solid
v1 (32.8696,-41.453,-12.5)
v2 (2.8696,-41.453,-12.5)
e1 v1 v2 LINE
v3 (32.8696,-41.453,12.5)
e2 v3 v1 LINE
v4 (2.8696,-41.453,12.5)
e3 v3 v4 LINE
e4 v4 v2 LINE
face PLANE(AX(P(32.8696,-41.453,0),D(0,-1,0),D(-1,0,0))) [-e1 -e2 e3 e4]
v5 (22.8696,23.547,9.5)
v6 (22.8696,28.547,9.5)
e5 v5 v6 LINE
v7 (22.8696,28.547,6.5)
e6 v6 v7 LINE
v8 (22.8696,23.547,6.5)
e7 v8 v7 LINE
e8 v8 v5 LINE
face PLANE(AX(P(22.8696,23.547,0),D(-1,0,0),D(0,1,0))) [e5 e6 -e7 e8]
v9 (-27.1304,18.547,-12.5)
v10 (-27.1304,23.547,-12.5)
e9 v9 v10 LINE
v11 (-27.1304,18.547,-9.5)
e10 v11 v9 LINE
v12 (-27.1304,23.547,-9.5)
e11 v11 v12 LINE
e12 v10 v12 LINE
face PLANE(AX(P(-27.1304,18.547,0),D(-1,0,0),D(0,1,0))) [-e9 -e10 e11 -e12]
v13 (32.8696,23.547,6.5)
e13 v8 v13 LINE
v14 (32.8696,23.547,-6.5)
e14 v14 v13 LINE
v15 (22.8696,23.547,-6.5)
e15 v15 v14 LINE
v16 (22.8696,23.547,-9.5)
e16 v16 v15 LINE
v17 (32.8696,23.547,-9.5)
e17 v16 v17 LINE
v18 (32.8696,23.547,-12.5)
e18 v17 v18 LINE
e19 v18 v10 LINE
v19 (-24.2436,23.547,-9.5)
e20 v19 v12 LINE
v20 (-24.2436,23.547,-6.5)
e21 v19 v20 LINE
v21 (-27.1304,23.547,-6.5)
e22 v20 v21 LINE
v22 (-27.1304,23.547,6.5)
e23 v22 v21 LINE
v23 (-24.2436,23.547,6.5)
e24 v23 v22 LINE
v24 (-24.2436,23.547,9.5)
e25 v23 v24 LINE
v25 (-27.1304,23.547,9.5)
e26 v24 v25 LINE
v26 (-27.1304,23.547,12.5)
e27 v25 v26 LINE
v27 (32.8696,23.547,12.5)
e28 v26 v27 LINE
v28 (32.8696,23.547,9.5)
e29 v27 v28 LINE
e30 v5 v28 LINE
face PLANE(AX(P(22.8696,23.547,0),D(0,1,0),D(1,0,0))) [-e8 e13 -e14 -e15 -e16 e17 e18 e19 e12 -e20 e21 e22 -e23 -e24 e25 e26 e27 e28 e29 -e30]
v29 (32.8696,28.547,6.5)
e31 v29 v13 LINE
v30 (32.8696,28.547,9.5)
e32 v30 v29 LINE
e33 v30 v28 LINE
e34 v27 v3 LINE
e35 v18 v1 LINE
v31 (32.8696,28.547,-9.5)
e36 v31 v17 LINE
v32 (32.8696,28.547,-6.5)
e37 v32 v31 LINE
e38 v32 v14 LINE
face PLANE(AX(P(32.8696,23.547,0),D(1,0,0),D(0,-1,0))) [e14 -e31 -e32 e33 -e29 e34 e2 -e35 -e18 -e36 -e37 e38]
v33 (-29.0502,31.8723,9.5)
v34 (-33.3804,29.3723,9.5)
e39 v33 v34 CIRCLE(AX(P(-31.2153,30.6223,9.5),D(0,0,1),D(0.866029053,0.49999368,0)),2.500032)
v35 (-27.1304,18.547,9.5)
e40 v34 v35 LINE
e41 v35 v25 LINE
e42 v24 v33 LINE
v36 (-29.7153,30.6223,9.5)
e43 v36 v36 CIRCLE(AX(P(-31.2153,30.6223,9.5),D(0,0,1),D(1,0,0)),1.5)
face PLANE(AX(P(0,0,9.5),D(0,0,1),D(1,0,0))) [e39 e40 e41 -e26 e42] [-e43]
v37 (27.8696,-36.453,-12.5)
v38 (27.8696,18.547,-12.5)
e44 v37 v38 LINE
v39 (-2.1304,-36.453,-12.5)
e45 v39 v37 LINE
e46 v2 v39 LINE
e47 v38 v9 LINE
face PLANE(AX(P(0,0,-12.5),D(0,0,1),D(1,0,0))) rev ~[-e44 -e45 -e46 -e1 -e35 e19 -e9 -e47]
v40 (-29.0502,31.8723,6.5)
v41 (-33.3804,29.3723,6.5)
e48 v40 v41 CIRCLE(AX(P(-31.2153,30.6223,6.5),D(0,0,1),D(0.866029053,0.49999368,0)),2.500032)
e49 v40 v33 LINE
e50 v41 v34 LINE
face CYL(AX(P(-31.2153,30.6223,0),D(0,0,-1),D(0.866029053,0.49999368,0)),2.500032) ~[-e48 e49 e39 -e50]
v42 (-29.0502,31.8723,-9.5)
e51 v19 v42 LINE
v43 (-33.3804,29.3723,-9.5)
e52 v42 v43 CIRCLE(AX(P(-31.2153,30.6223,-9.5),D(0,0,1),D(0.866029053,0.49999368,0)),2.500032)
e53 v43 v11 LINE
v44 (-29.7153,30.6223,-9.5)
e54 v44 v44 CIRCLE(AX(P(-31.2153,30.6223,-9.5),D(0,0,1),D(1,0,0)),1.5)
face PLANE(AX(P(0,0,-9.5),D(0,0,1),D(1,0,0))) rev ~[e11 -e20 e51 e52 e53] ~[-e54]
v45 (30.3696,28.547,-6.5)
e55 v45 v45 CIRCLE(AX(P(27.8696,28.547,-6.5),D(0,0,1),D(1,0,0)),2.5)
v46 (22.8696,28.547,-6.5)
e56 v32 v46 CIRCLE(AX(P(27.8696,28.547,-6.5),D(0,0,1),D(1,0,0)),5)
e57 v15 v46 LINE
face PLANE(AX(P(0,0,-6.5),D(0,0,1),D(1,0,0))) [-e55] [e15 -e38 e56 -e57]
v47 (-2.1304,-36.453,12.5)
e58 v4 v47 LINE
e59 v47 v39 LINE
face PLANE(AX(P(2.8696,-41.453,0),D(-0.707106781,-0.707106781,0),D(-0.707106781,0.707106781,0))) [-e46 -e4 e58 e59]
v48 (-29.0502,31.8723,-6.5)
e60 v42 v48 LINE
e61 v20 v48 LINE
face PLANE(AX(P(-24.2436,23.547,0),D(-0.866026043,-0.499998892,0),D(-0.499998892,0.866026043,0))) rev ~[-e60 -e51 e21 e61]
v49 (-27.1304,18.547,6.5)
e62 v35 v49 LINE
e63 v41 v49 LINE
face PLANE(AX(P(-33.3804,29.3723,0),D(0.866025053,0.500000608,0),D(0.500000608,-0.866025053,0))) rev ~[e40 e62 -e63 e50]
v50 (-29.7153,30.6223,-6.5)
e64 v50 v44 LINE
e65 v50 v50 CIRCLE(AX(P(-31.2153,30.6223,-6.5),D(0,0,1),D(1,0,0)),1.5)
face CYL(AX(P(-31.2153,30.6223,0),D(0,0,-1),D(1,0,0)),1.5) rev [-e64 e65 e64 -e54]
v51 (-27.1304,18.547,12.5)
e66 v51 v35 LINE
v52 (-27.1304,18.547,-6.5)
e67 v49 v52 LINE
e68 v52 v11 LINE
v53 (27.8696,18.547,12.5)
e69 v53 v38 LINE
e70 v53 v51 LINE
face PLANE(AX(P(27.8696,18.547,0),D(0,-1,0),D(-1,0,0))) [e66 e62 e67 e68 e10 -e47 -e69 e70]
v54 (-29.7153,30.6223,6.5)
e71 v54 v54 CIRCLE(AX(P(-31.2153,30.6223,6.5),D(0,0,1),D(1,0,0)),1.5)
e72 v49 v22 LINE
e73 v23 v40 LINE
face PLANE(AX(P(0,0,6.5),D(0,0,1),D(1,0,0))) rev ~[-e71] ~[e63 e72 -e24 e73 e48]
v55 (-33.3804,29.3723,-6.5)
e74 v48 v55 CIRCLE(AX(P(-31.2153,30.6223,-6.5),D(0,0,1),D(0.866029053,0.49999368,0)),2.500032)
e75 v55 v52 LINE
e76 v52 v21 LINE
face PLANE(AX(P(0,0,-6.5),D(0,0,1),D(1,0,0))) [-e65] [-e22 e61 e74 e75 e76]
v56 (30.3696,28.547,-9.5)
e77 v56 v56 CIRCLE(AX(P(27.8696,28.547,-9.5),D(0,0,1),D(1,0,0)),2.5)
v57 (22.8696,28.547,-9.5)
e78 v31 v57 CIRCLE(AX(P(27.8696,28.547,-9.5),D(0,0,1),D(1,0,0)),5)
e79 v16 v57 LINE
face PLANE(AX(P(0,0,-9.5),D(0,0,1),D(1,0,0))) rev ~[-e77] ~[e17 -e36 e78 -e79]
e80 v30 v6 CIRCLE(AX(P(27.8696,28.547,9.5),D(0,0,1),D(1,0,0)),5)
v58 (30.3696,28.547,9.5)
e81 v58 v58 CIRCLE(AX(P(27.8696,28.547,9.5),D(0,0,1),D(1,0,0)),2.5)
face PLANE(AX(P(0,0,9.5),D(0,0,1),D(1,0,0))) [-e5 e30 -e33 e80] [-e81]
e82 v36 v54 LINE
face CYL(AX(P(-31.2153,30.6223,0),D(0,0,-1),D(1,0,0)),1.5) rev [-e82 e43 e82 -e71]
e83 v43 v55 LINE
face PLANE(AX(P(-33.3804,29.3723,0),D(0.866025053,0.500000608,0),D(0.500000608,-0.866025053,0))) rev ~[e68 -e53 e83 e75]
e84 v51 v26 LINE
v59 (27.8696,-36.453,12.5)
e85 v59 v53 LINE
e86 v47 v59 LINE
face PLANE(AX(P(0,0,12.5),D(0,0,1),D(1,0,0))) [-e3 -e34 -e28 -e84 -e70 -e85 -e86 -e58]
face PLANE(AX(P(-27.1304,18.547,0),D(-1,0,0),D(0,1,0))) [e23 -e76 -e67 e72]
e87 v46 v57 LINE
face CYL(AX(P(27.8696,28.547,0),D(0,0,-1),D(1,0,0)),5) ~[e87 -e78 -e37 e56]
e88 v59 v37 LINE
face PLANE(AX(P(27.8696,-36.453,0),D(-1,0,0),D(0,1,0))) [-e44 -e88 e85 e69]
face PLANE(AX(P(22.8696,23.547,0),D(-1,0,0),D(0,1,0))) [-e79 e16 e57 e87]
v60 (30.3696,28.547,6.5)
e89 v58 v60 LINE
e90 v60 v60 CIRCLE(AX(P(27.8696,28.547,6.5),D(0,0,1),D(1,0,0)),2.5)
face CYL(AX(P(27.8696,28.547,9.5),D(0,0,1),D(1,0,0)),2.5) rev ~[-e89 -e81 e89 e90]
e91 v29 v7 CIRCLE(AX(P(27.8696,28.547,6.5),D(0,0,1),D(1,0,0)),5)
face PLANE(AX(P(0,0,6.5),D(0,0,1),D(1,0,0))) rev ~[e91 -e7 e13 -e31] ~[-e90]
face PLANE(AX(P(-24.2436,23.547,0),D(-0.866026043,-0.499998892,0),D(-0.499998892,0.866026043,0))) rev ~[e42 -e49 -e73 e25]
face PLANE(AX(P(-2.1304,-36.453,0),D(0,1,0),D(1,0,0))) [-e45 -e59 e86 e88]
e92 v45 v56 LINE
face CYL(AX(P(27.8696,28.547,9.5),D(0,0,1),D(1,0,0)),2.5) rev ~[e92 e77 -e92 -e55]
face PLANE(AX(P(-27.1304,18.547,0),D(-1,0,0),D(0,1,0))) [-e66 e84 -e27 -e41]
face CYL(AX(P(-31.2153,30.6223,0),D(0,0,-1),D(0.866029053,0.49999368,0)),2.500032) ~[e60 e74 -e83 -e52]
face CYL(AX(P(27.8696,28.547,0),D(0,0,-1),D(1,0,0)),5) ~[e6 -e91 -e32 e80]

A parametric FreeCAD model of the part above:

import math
import FreeCAD as App
import Part
import Sketcher
Q = App.Units.Quantity

doc = App.newDocument("Part")
params = doc.addObject("Spreadsheet::Sheet", "Params")
for row, (alias, value) in enumerate([
    ("sketch1_width", "60 mm"),
    ("sketch1_width2", "55 mm"),
    ("sketch1_width3", "30 mm"),
    ("sketch1_height", "5 mm"),
    ("sketch1_height2", "65 mm"),
    ("pad1_length", "25 mm"),
    ("sketch2_radius", "2.5 mm"),
    ("sketch2_height", "5 mm"),
    ("sketch2_diameter", "3 mm"),
    ("sketch2_length", "12.5 mm"),
    ("pad2_length", "19 mm"),
    ("sketch3_radius", "5 mm"),
    ("sketch3_radius2", "2.5 mm"),
    ("sketch3_height", "5 mm"),
    ("sketch3_diameter", "3 mm"),
    ("sketch3_length", "12.5 mm"),
    ("pocket1_length", "13 mm"),
    ("sketch4_radius", "5 mm"),
    ("sketch4_height", "5 mm"),
    ("pad3_length", "19 mm"),
    ("sketch5_radius", "5 mm"),
    ("sketch5_height", "5 mm"),
    ("pocket2_length", "13 mm"),
    ("sketch6_diameter", "5 mm"),
], start=1):
    params.set(f"A{row}", alias)
    params.set(f"B{row}", "=" + value)
    params.setAlias(f"B{row}", alias)

body = doc.addObject("PartDesign::Body", "Body")

# Sketch on XY plane
sketch1 = body.newObject("Sketcher::SketchObject", "Sketch")
sketch1.AttachmentSupport = (doc.getObject("XY_Plane"), [""])
sketch1.MapMode = "FlatFace"
sketch1.addGeometry([
    Part.LineSegment(App.Vector(33, 24, 0), App.Vector(-27, 24, 0)),  # 0
    Part.LineSegment(App.Vector(-27, 24, 0), App.Vector(-27, 19, 0)),  # 1
    Part.LineSegment(App.Vector(-27, 19, 0), App.Vector(28, 19, 0)),  # 2
    Part.LineSegment(App.Vector(28, 19, 0), App.Vector(28, -36, 0)),  # 3
    Part.LineSegment(App.Vector(28, -36, 0), App.Vector(-2, -36, 0)),  # 4
    Part.LineSegment(App.Vector(-2, -36, 0), App.Vector(3, -41, 0)),  # 5
    Part.LineSegment(App.Vector(3, -41, 0), App.Vector(33, -41, 0)),  # 6
    Part.LineSegment(App.Vector(33, -41, 0), App.Vector(33, 24, 0)),  # 7
], False)
sketch1.addConstraint([
    Sketcher.Constraint("Coincident", 0, 2, 1, 1),
    Sketcher.Constraint("Coincident", 1, 2, 2, 1),
    Sketcher.Constraint("Coincident", 2, 2, 3, 1),
    Sketcher.Constraint("Coincident", 3, 2, 4, 1),
    Sketcher.Constraint("Coincident", 4, 2, 5, 1),
    Sketcher.Constraint("Coincident", 5, 2, 6, 1),
    Sketcher.Constraint("Coincident", 6, 2, 7, 1),
    Sketcher.Constraint("Coincident", 7, 2, 0, 1),
    Sketcher.Constraint("Horizontal", 0),
    Sketcher.Constraint("Vertical", 1),
    Sketcher.Constraint("Horizontal", 2),
    Sketcher.Constraint("Vertical", 3),
    Sketcher.Constraint("Horizontal", 4),
    Sketcher.Constraint("Horizontal", 6),
    Sketcher.Constraint("Vertical", 7),
    Sketcher.Constraint("Equal", 4, 6),
    Sketcher.Constraint("Equal", 2, 3),
    Sketcher.Constraint("DistanceX", 0, 2, 0, 1, Q("60 mm")),
    Sketcher.Constraint("DistanceX", 2, 1, 2, 2, Q("55 mm")),
    Sketcher.Constraint("DistanceX", 4, 2, 4, 1, Q("30 mm")),
    Sketcher.Constraint("DistanceY", 1, 2, 1, 1, Q("5 mm")),
    Sketcher.Constraint("DistanceY", 7, 1, 7, 2, Q("65 mm")),
    Sketcher.Constraint("DistanceY", -1, 1, 0, 2, Q("23.547 mm")),
    Sketcher.Constraint("DistanceX", 0, 2, -1, 1, Q("27.1304 mm")),
])
sketch1.setExpression("Constraints[17]", "Params.sketch1_width")
sketch1.setExpression("Constraints[18]", "Params.sketch1_width2")
sketch1.setExpression("Constraints[19]", "Params.sketch1_width3")
sketch1.setExpression("Constraints[20]", "Params.sketch1_height")
sketch1.setExpression("Constraints[21]", "Params.sketch1_height2")
pad1 = body.newObject("PartDesign::Pad", "Pad")
pad1.Profile = sketch1
pad1.setExpression("Length", "Params.pad1_length")
pad1.Midplane = True

# Sketch on XY plane
sketch2 = body.newObject("Sketcher::SketchObject", "Sketch001")
sketch2.AttachmentSupport = (doc.getObject("XY_Plane"), [""])
sketch2.MapMode = "FlatFace"
sketch2.addGeometry([
    Part.LineSegment(App.Vector(-27.1, 23.5, 0), App.Vector(-24.2, 23.5, 0)),  # 0
    Part.LineSegment(App.Vector(-24.2, 23.5, 0), App.Vector(-29.1, 31.9, 0)),  # 1
    Part.ArcOfCircle(Part.Circle(App.Vector(-31.2, 30.6, 0), App.Vector(0, 0, 1), 2.5), math.radians(30), math.radians(210)),  # 2
    Part.LineSegment(App.Vector(-33.4, 29.4, 0), App.Vector(-27.1, 18.5, 0)),  # 3
    Part.LineSegment(App.Vector(-27.1, 18.5, 0), App.Vector(-27.1, 23.5, 0)),  # 4
    Part.Circle(App.Vector(-31.2, 30.6, 0), App.Vector(0, 0, 1), 1.5),  # 5
], False)
sketch2.addConstraint([
    Sketcher.Constraint("Coincident", 0, 2, 1, 1),
    Sketcher.Constraint("Tangent", 1, 2, 2, 1),
    Sketcher.Constraint("Tangent", 2, 2, 3, 1),
    Sketcher.Constraint("Coincident", 3, 2, 4, 1),
    Sketcher.Constraint("Coincident", 4, 2, 0, 1),
    Sketcher.Constraint("Horizontal", 0),
    Sketcher.Constraint("Vertical", 4),
    Sketcher.Constraint("Coincident", 5, 3, 2, 3),
    Sketcher.Constraint("Parallel", 1, 3),
    Sketcher.Constraint("Radius", 2, Q("2.5 mm")),
    Sketcher.Constraint("DistanceY", 4, 1, 4, 2, Q("5 mm")),
    Sketcher.Constraint("Angle", 3, Q("-60 deg")),
    Sketcher.Constraint("Diameter", 5, Q("3 mm")),
    Sketcher.Constraint("Distance", 3, Q("12.5 mm")),
    Sketcher.Constraint("DistanceY", -1, 1, 0, 2, Q("23.547 mm")),
    Sketcher.Constraint("DistanceX", 2, 3, -1, 1, Q("31.2153 mm")),
])
sketch2.setExpression("Constraints[9]", "Params.sketch2_radius")
sketch2.setExpression("Constraints[10]", "Params.sketch2_height")
sketch2.setExpression("Constraints[12]", "Params.sketch2_diameter")
sketch2.setExpression("Constraints[13]", "Params.sketch2_length")
pad2 = body.newObject("PartDesign::Pad", "Pad001")
pad2.Profile = sketch2
pad2.setExpression("Length", "Params.pad2_length")
pad2.Midplane = True

# Sketch on XY plane
sketch3 = body.newObject("Sketcher::SketchObject", "Sketch002")
sketch3.AttachmentSupport = (doc.getObject("XY_Plane"), [""])
sketch3.MapMode = "FlatFace"
sketch3.addGeometry([
    Part.LineSegment(App.Vector(22.9, 28.5, 0), App.Vector(22.9, 23.5, 0)),  # 0
    Part.LineSegment(App.Vector(22.9, 23.5, 0), App.Vector(32.9, 23.5, 0)),  # 1
    Part.LineSegment(App.Vector(32.9, 23.5, 0), App.Vector(32.9, 28.5, 0)),  # 2
    Part.ArcOfCircle(Part.Circle(App.Vector(27.9, 28.5, 0), App.Vector(0, 0, 1), 5), math.radians(0), math.radians(180)),  # 3
    Part.LineSegment(App.Vector(-27.1, 23.5, 0), App.Vector(-24.2, 23.5, 0)),  # 4
    Part.LineSegment(App.Vector(-24.2, 23.5, 0), App.Vector(-29.1, 31.9, 0)),  # 5
    Part.ArcOfCircle(Part.Circle(App.Vector(-31.2, 30.6, 0), App.Vector(0, 0, 1), 2.5), math.radians(30), math.radians(210)),  # 6
    Part.LineSegment(App.Vector(-33.4, 29.4, 0), App.Vector(-27.1, 18.5, 0)),  # 7
    Part.LineSegment(App.Vector(-27.1, 18.5, 0), App.Vector(-27.1, 23.5, 0)),  # 8
    Part.Circle(App.Vector(-31.2, 30.6, 0), App.Vector(0, 0, 1), 1.5),  # 9
], False)
sketch3.addConstraint([
    Sketcher.Constraint("Coincident", 0, 2, 1, 1),
    Sketcher.Constraint("Coincident", 1, 2, 2, 1),
    Sketcher.Constraint("Tangent", 2, 2, 3, 1),
    Sketcher.Constraint("Tangent", 3, 2, 0, 1),
    Sketcher.Constraint("Coincident", 4, 2, 5, 1),
    Sketcher.Constraint("Tangent", 5, 2, 6, 1),
    Sketcher.Constraint("Tangent", 6, 2, 7, 1),
    Sketcher.Constraint("Coincident", 7, 2, 8, 1),
    Sketcher.Constraint("Coincident", 8, 2, 4, 1),
    Sketcher.Constraint("Vertical", 0),
    Sketcher.Constraint("Horizontal", 1),
    Sketcher.Constraint("Vertical", 2),
    Sketcher.Constraint("Horizontal", 4),
    Sketcher.Constraint("Vertical", 8),
    Sketcher.Constraint("Coincident", 9, 3, 6, 3),
    Sketcher.Constraint("Parallel", 5, 7),
    Sketcher.Constraint("Horizontal", 1, 2, 4, 2),
    Sketcher.Constraint("Equal", 2, 8),
    Sketcher.Constraint("Radius", 3, Q("5 mm")),
    Sketcher.Constraint("Radius", 6, Q("2.5 mm")),
    Sketcher.Constraint("DistanceY", 0, 2, 0, 1, Q("5 mm")),
    Sketcher.Constraint("Angle", 7, Q("-60 deg")),
    Sketcher.Constraint("Diameter", 9, Q("3 mm")),
    Sketcher.Constraint("Distance", 7, Q("12.5 mm")),
    Sketcher.Constraint("DistanceX", 6, 2, 3, 2, Q("56.25 mm")),
    Sketcher.Constraint("DistanceY", -1, 1, 3, 3, Q("28.547 mm")),
    Sketcher.Constraint("DistanceX", -1, 1, 3, 3, Q("27.8696 mm")),
])
sketch3.setExpression("Constraints[18]", "Params.sketch3_radius")
sketch3.setExpression("Constraints[19]", "Params.sketch3_radius2")
sketch3.setExpression("Constraints[20]", "Params.sketch3_height")
sketch3.setExpression("Constraints[22]", "Params.sketch3_diameter")
sketch3.setExpression("Constraints[23]", "Params.sketch3_length")
pocket1 = body.newObject("PartDesign::Pocket", "Pocket")
pocket1.Profile = sketch3
pocket1.setExpression("Length", "Params.pocket1_length")
pocket1.Midplane = True

# Sketch on XY plane
sketch4 = body.newObject("Sketcher::SketchObject", "Sketch003")
sketch4.AttachmentSupport = (doc.getObject("XY_Plane"), [""])
sketch4.MapMode = "FlatFace"
sketch4.addGeometry([
    Part.LineSegment(App.Vector(23, 29, 0), App.Vector(23, 24, 0)),
    Part.LineSegment(App.Vector(23, 24, 0), App.Vector(33, 24, 0)),
    Part.LineSegment(App.Vector(33, 24, 0), App.Vector(33, 29, 0)),
    Part.ArcOfCircle(Part.Circle(App.Vector(28, 29, 0), App.Vector(0, 0, 1), 5), math.radians(0), math.radians(180)),
], False)
sketch4.addConstraint([
    Sketcher.Constraint("Coincident", 0, 2, 1, 1),
    Sketcher.Constraint("Coincident", 1, 2, 2, 1),
    Sketcher.Constraint("Tangent", 2, 2, 3, 1),
    Sketcher.Constraint("Tangent", 3, 2, 0, 1),
    Sketcher.Constraint("Vertical", 0),
    Sketcher.Constraint("Horizontal", 1),
    Sketcher.Constraint("Vertical", 2),
    Sketcher.Constraint("Radius", 3, Q("5 mm")),
    Sketcher.Constraint("DistanceY", 0, 2, 0, 1, Q("5 mm")),
    Sketcher.Constraint("DistanceY", -1, 1, 3, 3, Q("28.547 mm")),
    Sketcher.Constraint("DistanceX", -1, 1, 3, 3, Q("27.8696 mm")),
])
sketch4.setExpression("Constraints[7]", "Params.sketch4_radius")
sketch4.setExpression("Constraints[8]", "Params.sketch4_height")
pad3 = body.newObject("PartDesign::Pad", "Pad002")
pad3.Profile = sketch4
pad3.setExpression("Length", "Params.pad3_length")
pad3.Midplane = True

# Sketch on XY plane
sketch5 = body.newObject("Sketcher::SketchObject", "Sketch004")
sketch5.AttachmentSupport = (doc.getObject("XY_Plane"), [""])
sketch5.MapMode = "FlatFace"
sketch5.addGeometry([
    Part.LineSegment(App.Vector(23, 29, 0), App.Vector(23, 24, 0)),
    Part.LineSegment(App.Vector(23, 24, 0), App.Vector(33, 24, 0)),
    Part.LineSegment(App.Vector(33, 24, 0), App.Vector(33, 29, 0)),
    Part.ArcOfCircle(Part.Circle(App.Vector(28, 29, 0), App.Vector(0, 0, 1), 5), math.radians(0), math.radians(180)),
], False)
sketch5.addConstraint([
    Sketcher.Constraint("Coincident", 0, 2, 1, 1),
    Sketcher.Constraint("Coincident", 1, 2, 2, 1),
    Sketcher.Constraint("Tangent", 2, 2, 3, 1),
    Sketcher.Constraint("Tangent", 3, 2, 0, 1),
    Sketcher.Constraint("Vertical", 0),
    Sketcher.Constraint("Horizontal", 1),
    Sketcher.Constraint("Vertical", 2),
    Sketcher.Constraint("Radius", 3, Q("5 mm")),
    Sketcher.Constraint("DistanceY", 0, 2, 0, 1, Q("5 mm")),
    Sketcher.Constraint("DistanceY", -1, 1, 3, 3, Q("28.547 mm")),
    Sketcher.Constraint("DistanceX", -1, 1, 3, 3, Q("27.8696 mm")),
])
sketch5.setExpression("Constraints[7]", "Params.sketch5_radius")
sketch5.setExpression("Constraints[8]", "Params.sketch5_height")
pocket2 = body.newObject("PartDesign::Pocket", "Pocket001")
pocket2.Profile = sketch5
pocket2.setExpression("Length", "Params.pocket2_length")
pocket2.Midplane = True

# Sketch on XY plane
sketch6 = body.newObject("Sketcher::SketchObject", "Sketch005")
sketch6.AttachmentSupport = (doc.getObject("XY_Plane"), [""])
sketch6.MapMode = "FlatFace"
sketch6.AttachmentOffset = App.Placement(App.Vector(0, 0, 9.5), App.Rotation())
sketch6.addGeometry(Part.Circle(App.Vector(27.9, 28.5, 0), App.Vector(0, 0, 1), 2.5), False)
sketch6.addConstraint([
    Sketcher.Constraint("Diameter", 0, Q("5 mm")),
    Sketcher.Constraint("DistanceY", -1, 1, 0, 3, Q("28.547 mm")),
    Sketcher.Constraint("DistanceX", -1, 1, 0, 3, Q("27.8696 mm")),
])
sketch6.setExpression("Constraints[0]", "Params.sketch6_diameter")
pocket3 = body.newObject("PartDesign::Pocket", "Pocket002")
pocket3.Profile = sketch6
pocket3.Type = "ThroughAll"

doc.recompute()
